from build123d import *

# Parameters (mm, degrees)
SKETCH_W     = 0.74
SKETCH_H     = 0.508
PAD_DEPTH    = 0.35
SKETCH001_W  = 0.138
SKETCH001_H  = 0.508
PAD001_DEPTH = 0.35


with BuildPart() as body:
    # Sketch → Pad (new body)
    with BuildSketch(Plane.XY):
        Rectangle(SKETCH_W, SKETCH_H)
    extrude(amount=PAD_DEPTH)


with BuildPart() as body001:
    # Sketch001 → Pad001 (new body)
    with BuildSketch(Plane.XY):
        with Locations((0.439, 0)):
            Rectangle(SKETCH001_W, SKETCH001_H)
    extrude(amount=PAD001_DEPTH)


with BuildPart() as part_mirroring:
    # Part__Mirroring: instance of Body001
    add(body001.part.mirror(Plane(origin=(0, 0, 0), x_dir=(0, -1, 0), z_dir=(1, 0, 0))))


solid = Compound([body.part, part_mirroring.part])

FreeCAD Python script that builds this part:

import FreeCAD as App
import Part
import Sketcher
Q = App.Units.Quantity


def add_polygon(sketch, points):
    """Adds a closed chain of lines whose ends are joined by coincident constraints."""
    first, n = sketch.GeometryCount, len(points)
    for a, b in zip(points, points[1:] + points[:1]):
        sketch.addGeometry(Part.LineSegment(App.Vector(*a, 0), App.Vector(*b, 0)), False)
    for i in range(n):
        sketch.addConstraint(Sketcher.Constraint("Coincident", first + i, 2, first + (i + 1) % n, 1))

doc = App.newDocument("Part")
body = doc.addObject("PartDesign::Body", "Body")

sketch1 = body.newObject("Sketcher::SketchObject", "Sketch")
sketch1.AttachmentSupport = (doc.getObject("XY_Plane"), [""])
sketch1.MapMode = "FlatFace"
add_polygon(sketch1, [(-0.4, 0.3), (-0.4, -0.3), (0.4, -0.3), (0.4, 0.3)])
sketch1.addConstraint([
    Sketcher.Constraint("Vertical", 0),
    Sketcher.Constraint("Horizontal", 1),
    Sketcher.Constraint("Vertical", 2),
    Sketcher.Constraint("Horizontal", 3),
    Sketcher.Constraint("Symmetric", 0, 2, 2, 2, -1, 1),
    Sketcher.Constraint("DistanceY", 0, 2, 0, 1, Q("0.02 in")),
    Sketcher.Constraint("DistanceX", 1, 1, 1, 2, Q("0.74 mm")),
])
pad1 = body.newObject("PartDesign::Pad", "Pad")
pad1.Profile = sketch1
pad1.Length = 0.35
body2 = doc.addObject("PartDesign::Body", "Body001")

sketch2 = body2.newObject("Sketcher::SketchObject", "Sketch001")
sketch2.AttachmentSupport = (doc.getObject("XY_Plane001"), [""])
sketch2.MapMode = "FlatFace"
add_polygon(sketch2, [(0.37, 0.25), (0.37, -0.25), (0.51, -0.25), (0.51, 0.25)])
sketch2.addConstraint([
    Sketcher.Constraint("Vertical", 0),
    Sketcher.Constraint("Horizontal", 1),
    Sketcher.Constraint("Vertical", 2),
    Sketcher.Constraint("Horizontal", 3),
    Sketcher.Constraint("DistanceY", 0, 2, 0, 1, Q("0.02 in")),
    Sketcher.Constraint("DistanceY", 0, 2, -1, 1, Q("0.01 in")),
    Sketcher.Constraint("DistanceX", -1, 1, 1, 2, Q("0.02 in")),
    Sketcher.Constraint("DistanceX", 1, 1, 1, 2, Q("0.138 mm")),
])
pad2 = body2.newObject("PartDesign::Pad", "Pad001")
pad2.Profile = sketch2
pad2.Length = 0.35
body3 = doc.addObject("PartDesign::Body", "Body002")
doc.recompute()

mirroring = doc.addObject("Part::Mirroring", "Mirroring")
mirroring.Source = body2
mirroring.Base = App.Vector(0, 0, 0)
mirroring.Normal = App.Vector(1, 0, 0)
body3.BaseFeature = mirroring
doc.recompute()
body2.Visibility = False
mirroring.Visibility = False

doc.recompute()
